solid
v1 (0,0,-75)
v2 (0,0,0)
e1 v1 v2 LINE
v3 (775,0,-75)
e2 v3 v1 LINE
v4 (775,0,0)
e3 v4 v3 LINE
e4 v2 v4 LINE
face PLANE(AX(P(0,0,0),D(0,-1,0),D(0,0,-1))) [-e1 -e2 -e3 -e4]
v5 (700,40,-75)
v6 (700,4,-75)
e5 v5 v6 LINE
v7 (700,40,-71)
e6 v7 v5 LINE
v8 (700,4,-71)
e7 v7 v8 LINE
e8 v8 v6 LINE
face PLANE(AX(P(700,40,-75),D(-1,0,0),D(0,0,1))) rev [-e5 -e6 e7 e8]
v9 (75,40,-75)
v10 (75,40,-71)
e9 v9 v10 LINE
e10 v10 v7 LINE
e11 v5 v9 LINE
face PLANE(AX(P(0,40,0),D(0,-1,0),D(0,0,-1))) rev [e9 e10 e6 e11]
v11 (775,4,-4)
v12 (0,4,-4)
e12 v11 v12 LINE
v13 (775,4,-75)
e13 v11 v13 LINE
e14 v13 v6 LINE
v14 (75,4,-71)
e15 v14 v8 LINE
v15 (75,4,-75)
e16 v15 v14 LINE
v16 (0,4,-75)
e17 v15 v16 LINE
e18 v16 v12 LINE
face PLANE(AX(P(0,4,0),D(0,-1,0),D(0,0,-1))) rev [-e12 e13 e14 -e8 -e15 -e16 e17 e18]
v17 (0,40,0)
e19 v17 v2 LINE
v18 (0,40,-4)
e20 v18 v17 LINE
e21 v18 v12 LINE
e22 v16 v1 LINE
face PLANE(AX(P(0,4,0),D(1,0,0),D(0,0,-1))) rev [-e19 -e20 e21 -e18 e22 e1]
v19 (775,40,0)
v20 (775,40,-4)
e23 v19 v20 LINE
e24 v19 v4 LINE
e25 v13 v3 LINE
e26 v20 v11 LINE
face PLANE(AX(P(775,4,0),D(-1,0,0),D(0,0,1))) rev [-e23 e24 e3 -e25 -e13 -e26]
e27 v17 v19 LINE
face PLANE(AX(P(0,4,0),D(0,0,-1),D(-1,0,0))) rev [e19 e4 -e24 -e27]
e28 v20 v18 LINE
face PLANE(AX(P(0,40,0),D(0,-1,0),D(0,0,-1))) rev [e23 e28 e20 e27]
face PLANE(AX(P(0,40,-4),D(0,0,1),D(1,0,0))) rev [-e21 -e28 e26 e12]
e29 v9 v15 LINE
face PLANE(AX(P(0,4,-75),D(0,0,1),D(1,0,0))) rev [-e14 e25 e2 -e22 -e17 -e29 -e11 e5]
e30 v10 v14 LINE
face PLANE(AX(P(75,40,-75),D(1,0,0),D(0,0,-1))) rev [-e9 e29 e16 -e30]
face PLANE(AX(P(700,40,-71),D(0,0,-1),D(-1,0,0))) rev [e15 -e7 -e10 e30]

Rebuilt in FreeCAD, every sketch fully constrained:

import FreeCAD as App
import Part
import Sketcher

V = App.Vector


def add_polygon(sketch, points):
    """Adds a closed chain of lines whose ends are joined by coincident constraints."""
    first, n = sketch.GeometryCount, len(points)
    for a, b in zip(points, points[1:] + points[:1]):
        sketch.addGeometry(Part.LineSegment(App.Vector(*a, 0), App.Vector(*b, 0)), False)
    for i in range(n):
        sketch.addConstraint(Sketcher.Constraint("Coincident", first + i, 2, first + (i + 1) % n, 1))

doc = App.newDocument("Part")
body = doc.addObject("PartDesign::Body", "Body")

sketch1 = body.newObject("Sketcher::SketchObject", "Sketch")
sketch1.AttachmentSupport = (doc.getObject("XZ_Plane"), [""])
sketch1.MapMode = "FlatFace"
add_polygon(sketch1, [(0, -75), (0, 0), (775, 0), (775, -75)])
sketch1.addConstraint(Sketcher.Constraint("Vertical", 0))
sketch1.addConstraint(Sketcher.Constraint("Horizontal", 1))
sketch1.addConstraint(Sketcher.Constraint("Vertical", 2))
sketch1.addConstraint(Sketcher.Constraint("Horizontal", 3))
sketch1.addConstraint(Sketcher.Constraint("Coincident", 0, 2, -1, 1))
sketch1.addConstraint(Sketcher.Constraint("DistanceX", 1, 1, 1, 2, 775.0))
sketch1.addConstraint(Sketcher.Constraint("DistanceY", 0, 1, 0, 2, 75.0))
pad1 = body.newObject("PartDesign::Pad", "Pad")
pad1.Profile = sketch1
pad1.Length = 4
pad1.Reversed = True

sketch2 = body.newObject("Sketcher::SketchObject", "Sketch001")
sketch2.AttachmentSupport = (doc.getObject("XZ_Plane"), [""])
sketch2.MapMode = "FlatFace"
sketch2.AttachmentOffset = App.Placement(V(0, 0, -4), App.Rotation())
add_polygon(sketch2, [(0, -4), (0, 0), (775, 0), (775, -4)])
add_polygon(sketch2, [(75, -75), (75, -71), (700, -71), (700, -75)])
sketch2.addConstraint(Sketcher.Constraint("Vertical", 0))
sketch2.addConstraint(Sketcher.Constraint("Horizontal", 1))
sketch2.addConstraint(Sketcher.Constraint("Vertical", 2))
sketch2.addConstraint(Sketcher.Constraint("Horizontal", 3))
sketch2.addConstraint(Sketcher.Constraint("Vertical", 4))
sketch2.addConstraint(Sketcher.Constraint("Horizontal", 5))
sketch2.addConstraint(Sketcher.Constraint("Vertical", 6))
sketch2.addConstraint(Sketcher.Constraint("Horizontal", 7))
sketch2.addConstraint(Sketcher.Constraint("Coincident", 0, 2, -1, 1))
sketch2.addConstraint(Sketcher.Constraint("Equal", 2, 4))
sketch2.addConstraint(Sketcher.Constraint("DistanceX", 1, 1, 1, 2, 775.0))
sketch2.addConstraint(Sketcher.Constraint("DistanceX", 5, 1, 5, 2, 625.0))
sketch2.addConstraint(Sketcher.Constraint("DistanceY", 0, 1, 0, 2, 4.0))
sketch2.addConstraint(Sketcher.Constraint("DistanceX", -1, 1, 4, 2, 75.0))
sketch2.addConstraint(Sketcher.Constraint("DistanceY", 4, 2, -1, 1, 71.0))
pad2 = body.newObject("PartDesign::Pad", "Pad001")
pad2.Profile = sketch2
pad2.Length = 36
pad2.Reversed = True

doc.recompute()
